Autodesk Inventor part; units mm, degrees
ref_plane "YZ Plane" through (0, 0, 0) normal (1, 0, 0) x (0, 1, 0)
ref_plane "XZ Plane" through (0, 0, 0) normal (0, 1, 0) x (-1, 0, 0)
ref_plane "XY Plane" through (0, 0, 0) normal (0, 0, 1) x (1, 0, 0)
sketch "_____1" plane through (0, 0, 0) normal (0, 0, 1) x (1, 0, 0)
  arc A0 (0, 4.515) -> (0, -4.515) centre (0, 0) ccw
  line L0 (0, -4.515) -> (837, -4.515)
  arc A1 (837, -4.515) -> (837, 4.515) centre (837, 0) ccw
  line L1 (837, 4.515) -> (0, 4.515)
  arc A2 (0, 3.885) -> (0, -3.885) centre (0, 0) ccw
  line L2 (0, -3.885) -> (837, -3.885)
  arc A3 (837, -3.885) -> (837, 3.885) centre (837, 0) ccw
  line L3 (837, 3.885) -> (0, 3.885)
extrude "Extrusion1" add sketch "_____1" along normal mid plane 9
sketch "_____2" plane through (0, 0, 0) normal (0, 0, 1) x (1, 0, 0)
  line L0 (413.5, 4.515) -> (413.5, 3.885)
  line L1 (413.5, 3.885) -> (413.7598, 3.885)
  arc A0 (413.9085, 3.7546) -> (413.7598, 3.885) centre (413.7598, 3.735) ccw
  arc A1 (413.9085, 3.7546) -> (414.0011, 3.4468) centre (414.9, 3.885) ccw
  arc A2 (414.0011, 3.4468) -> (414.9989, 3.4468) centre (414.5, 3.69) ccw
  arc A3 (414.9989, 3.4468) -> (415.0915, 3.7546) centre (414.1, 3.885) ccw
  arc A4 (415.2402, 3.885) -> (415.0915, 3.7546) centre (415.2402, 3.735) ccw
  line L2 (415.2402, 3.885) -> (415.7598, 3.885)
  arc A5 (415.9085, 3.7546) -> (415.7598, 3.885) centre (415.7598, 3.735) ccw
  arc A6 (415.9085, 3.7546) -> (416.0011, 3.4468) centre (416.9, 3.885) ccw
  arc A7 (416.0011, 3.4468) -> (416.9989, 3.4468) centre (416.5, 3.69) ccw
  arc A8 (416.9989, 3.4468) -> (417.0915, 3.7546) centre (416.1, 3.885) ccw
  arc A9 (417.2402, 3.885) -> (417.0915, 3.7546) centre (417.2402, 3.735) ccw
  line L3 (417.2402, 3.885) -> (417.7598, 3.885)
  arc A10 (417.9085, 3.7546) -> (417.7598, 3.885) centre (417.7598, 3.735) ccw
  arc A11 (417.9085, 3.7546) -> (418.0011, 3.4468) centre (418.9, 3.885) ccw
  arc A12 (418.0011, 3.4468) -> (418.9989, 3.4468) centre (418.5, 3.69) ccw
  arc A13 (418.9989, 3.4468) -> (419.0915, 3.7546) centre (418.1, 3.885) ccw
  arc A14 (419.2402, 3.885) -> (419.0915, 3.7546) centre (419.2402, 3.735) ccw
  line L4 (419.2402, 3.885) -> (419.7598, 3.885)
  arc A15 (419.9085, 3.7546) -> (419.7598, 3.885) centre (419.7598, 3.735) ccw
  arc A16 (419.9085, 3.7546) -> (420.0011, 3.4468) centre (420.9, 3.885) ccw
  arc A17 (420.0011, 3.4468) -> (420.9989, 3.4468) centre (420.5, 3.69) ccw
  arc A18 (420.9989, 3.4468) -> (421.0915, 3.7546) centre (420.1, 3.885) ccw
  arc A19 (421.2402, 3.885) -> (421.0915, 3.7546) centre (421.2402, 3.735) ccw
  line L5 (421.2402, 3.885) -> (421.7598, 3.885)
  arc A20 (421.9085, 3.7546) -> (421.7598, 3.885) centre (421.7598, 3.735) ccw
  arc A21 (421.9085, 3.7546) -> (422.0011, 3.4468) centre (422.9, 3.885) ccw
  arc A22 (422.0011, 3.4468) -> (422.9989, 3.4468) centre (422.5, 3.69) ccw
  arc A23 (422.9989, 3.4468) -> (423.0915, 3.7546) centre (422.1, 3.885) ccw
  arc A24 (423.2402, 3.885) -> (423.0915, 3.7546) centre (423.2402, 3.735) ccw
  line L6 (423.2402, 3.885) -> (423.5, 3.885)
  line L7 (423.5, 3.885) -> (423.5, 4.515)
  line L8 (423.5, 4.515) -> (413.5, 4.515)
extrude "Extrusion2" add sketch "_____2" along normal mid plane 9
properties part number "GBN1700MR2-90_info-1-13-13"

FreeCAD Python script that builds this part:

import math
import FreeCAD as App
import Part
import Sketcher

V = App.Vector
Q = App.Units.Quantity

doc = App.newDocument("Part")
body = doc.addObject("PartDesign::Body", "Body")

sketch1 = doc.addObject("Sketcher::SketchObject", "Sketch")
body.addObject(sketch1)
sketch1.AttachmentSupport = (doc.XY_Plane, [""])
sketch1.MapMode = "FlatFace"
sketch1.addGeometry(Part.LineSegment(V(837, 4.5, 0), V(0, 4.5, 0)), False)
sketch1.addGeometry(Part.ArcOfCircle(Part.Circle(V(0, 0, 0), V(0, 0, 1), 4.5), math.radians(90), math.radians(270)), False)
sketch1.addGeometry(Part.LineSegment(V(0, -4.5, 0), V(837, -4.5, 0)), False)
sketch1.addGeometry(Part.ArcOfCircle(Part.Circle(V(837, 0, 0), V(0, 0, 1), 4.5), math.radians(-90), math.radians(90)), False)
sketch1.addGeometry(Part.ArcOfCircle(Part.Circle(V(0, 0, 0), V(0, 0, 1), 3.9), math.radians(90), math.radians(270)), False)
sketch1.addGeometry(Part.LineSegment(V(0, 3.9, 0), V(837, 3.9, 0)), False)
sketch1.addGeometry(Part.ArcOfCircle(Part.Circle(V(837, 0, 0), V(0, 0, 1), 3.9), math.radians(-90), math.radians(90)), False)
sketch1.addGeometry(Part.LineSegment(V(837, -3.9, 0), V(0, -3.9, 0)), False)
sketch1.addConstraint(Sketcher.Constraint("Tangent", 0, 2, 1, 1))
sketch1.addConstraint(Sketcher.Constraint("Tangent", 1, 2, 2, 1))
sketch1.addConstraint(Sketcher.Constraint("Tangent", 2, 2, 3, 1))
sketch1.addConstraint(Sketcher.Constraint("Tangent", 3, 2, 0, 1))
sketch1.addConstraint(Sketcher.Constraint("Tangent", 4, 1, 5, 1))
sketch1.addConstraint(Sketcher.Constraint("Tangent", 5, 2, 6, 2))
sketch1.addConstraint(Sketcher.Constraint("Tangent", 6, 1, 7, 1))
sketch1.addConstraint(Sketcher.Constraint("Tangent", 7, 2, 4, 2))
sketch1.addConstraint(Sketcher.Constraint("Horizontal", 0))
sketch1.addConstraint(Sketcher.Constraint("Horizontal", 2))
sketch1.addConstraint(Sketcher.Constraint("Horizontal", 5))
sketch1.addConstraint(Sketcher.Constraint("Horizontal", 7))
sketch1.addConstraint(Sketcher.Constraint("Coincident", 1, 3, -1, 1))
sketch1.addConstraint(Sketcher.Constraint("Coincident", 4, 3, -1, 1))
sketch1.addConstraint(Sketcher.Constraint("Vertical", 6, 3, 2, 2))
sketch1.addConstraint(Sketcher.Constraint("DistanceX", 0, 2, 0, 1, Q("837 mm")))
sketch1.addConstraint(Sketcher.Constraint("Radius", 1, Q("4.515 mm")))
sketch1.addConstraint(Sketcher.Constraint("Radius", 4, Q("3.885 mm")))
pad1 = doc.addObject("PartDesign::Pad", "Pad")
body.addObject(pad1)
pad1.Profile = sketch1
pad1.Length = 9
pad1.Midplane = True

sketch2 = doc.addObject("Sketcher::SketchObject", "Sketch001")
body.addObject(sketch2)
sketch2.AttachmentSupport = (doc.XY_Plane, [""])
sketch2.MapMode = "FlatFace"
sketch2.addGeometry(Part.LineSegment(V(423.5, 4.51, 0), V(413.5, 4.51, 0)), False)
sketch2.addGeometry(Part.LineSegment(V(413.5, 4.51, 0), V(413.5, 3.88, 0)), False)
sketch2.addGeometry(Part.LineSegment(V(413.5, 3.88, 0), V(413.76, 3.88, 0)), False)
sketch2.addGeometry(Part.ArcOfCircle(Part.Circle(V(413.76, 3.73, 0), V(0, 0, 1), 0.15), math.radians(8), math.radians(90)), False)
sketch2.addGeometry(Part.ArcOfCircle(Part.Circle(V(414.9, 3.88, 0), V(0, 0, 1), 1), math.radians(-172.51), math.radians(-154.01)), False)
sketch2.addGeometry(Part.ArcOfCircle(Part.Circle(V(414.5, 3.69, 0), V(0, 0, 1), 0.56), math.radians(-154), math.radians(-26)), False)
sketch2.addGeometry(Part.ArcOfCircle(Part.Circle(V(414.1, 3.88, 0), V(0, 0, 1), 1), math.radians(-25.99), math.radians(-7.49)), False)
sketch2.addGeometry(Part.ArcOfCircle(Part.Circle(V(415.24, 3.73, 0), V(0, 0, 1), 0.15), math.radians(90), math.radians(172)), False)
sketch2.addGeometry(Part.LineSegment(V(415.24, 3.88, 0), V(415.76, 3.88, 0)), False)
sketch2.addGeometry(Part.ArcOfCircle(Part.Circle(V(415.76, 3.73, 0), V(0, 0, 1), 0.15), math.radians(8), math.radians(90)), False)
sketch2.addGeometry(Part.ArcOfCircle(Part.Circle(V(416.9, 3.88, 0), V(0, 0, 1), 1), math.radians(-172.51), math.radians(-154.01)), False)
sketch2.addGeometry(Part.ArcOfCircle(Part.Circle(V(416.5, 3.69, 0), V(0, 0, 1), 0.56), math.radians(-154), math.radians(-26)), False)
sketch2.addGeometry(Part.ArcOfCircle(Part.Circle(V(416.1, 3.88, 0), V(0, 0, 1), 1), math.radians(-25.99), math.radians(-7.49)), False)
sketch2.addGeometry(Part.ArcOfCircle(Part.Circle(V(417.24, 3.73, 0), V(0, 0, 1), 0.15), math.radians(90), math.radians(172)), False)
sketch2.addGeometry(Part.LineSegment(V(417.24, 3.88, 0), V(417.76, 3.88, 0)), False)
sketch2.addGeometry(Part.ArcOfCircle(Part.Circle(V(417.76, 3.73, 0), V(0, 0, 1), 0.15), math.radians(8), math.radians(90)), False)
sketch2.addGeometry(Part.ArcOfCircle(Part.Circle(V(418.9, 3.88, 0), V(0, 0, 1), 1), math.radians(-172.51), math.radians(-154.01)), False)
sketch2.addGeometry(Part.ArcOfCircle(Part.Circle(V(418.5, 3.69, 0), V(0, 0, 1), 0.56), math.radians(-154), math.radians(-26)), False)
sketch2.addGeometry(Part.ArcOfCircle(Part.Circle(V(418.1, 3.88, 0), V(0, 0, 1), 1), math.radians(-25.99), math.radians(-7.49)), False)
sketch2.addGeometry(Part.ArcOfCircle(Part.Circle(V(419.24, 3.73, 0), V(0, 0, 1), 0.15), math.radians(90), math.radians(172)), False)
sketch2.addGeometry(Part.LineSegment(V(419.24, 3.88, 0), V(419.76, 3.88, 0)), False)
sketch2.addGeometry(Part.ArcOfCircle(Part.Circle(V(419.76, 3.73, 0), V(0, 0, 1), 0.15), math.radians(8), math.radians(90)), False)
sketch2.addGeometry(Part.ArcOfCircle(Part.Circle(V(420.9, 3.88, 0), V(0, 0, 1), 1), math.radians(-172.51), math.radians(-154.01)), False)
sketch2.addGeometry(Part.ArcOfCircle(Part.Circle(V(420.5, 3.69, 0), V(0, 0, 1), 0.56), math.radians(-154), math.radians(-26)), False)
sketch2.addGeometry(Part.ArcOfCircle(Part.Circle(V(420.1, 3.88, 0), V(0, 0, 1), 1), math.radians(-25.99), math.radians(-7.49)), False)
sketch2.addGeometry(Part.ArcOfCircle(Part.Circle(V(421.24, 3.73, 0), V(0, 0, 1), 0.15), math.radians(90), math.radians(172)), False)
sketch2.addGeometry(Part.LineSegment(V(421.24, 3.88, 0), V(421.76, 3.88, 0)), False)
sketch2.addGeometry(Part.ArcOfCircle(Part.Circle(V(421.76, 3.73, 0), V(0, 0, 1), 0.15), math.radians(8), math.radians(90)), False)
sketch2.addGeometry(Part.ArcOfCircle(Part.Circle(V(422.9, 3.88, 0), V(0, 0, 1), 1), math.radians(-172.51), math.radians(-154.01)), False)
sketch2.addGeometry(Part.ArcOfCircle(Part.Circle(V(422.5, 3.69, 0), V(0, 0, 1), 0.56), math.radians(-154), math.radians(-26)), False)
sketch2.addGeometry(Part.ArcOfCircle(Part.Circle(V(422.1, 3.88, 0), V(0, 0, 1), 1), math.radians(-25.99), math.radians(-7.49)), False)
sketch2.addGeometry(Part.ArcOfCircle(Part.Circle(V(423.24, 3.73, 0), V(0, 0, 1), 0.15), math.radians(90), math.radians(172)), False)
sketch2.addGeometry(Part.LineSegment(V(423.24, 3.88, 0), V(423.5, 3.88, 0)), False)
sketch2.addGeometry(Part.LineSegment(V(423.5, 3.88, 0), V(423.5, 4.51, 0)), False)
sketch2.addConstraint(Sketcher.Constraint("Coincident", 0, 2, 1, 1))
sketch2.addConstraint(Sketcher.Constraint("Coincident", 1, 2, 2, 1))
sketch2.addConstraint(Sketcher.Constraint("Tangent", 2, 2, 3, 2))
sketch2.addConstraint(Sketcher.Constraint("Tangent", 3, 1, 4, 1))
sketch2.addConstraint(Sketcher.Constraint("Tangent", 4, 2, 5, 1))
sketch2.addConstraint(Sketcher.Constraint("Tangent", 5, 2, 6, 1))
sketch2.addConstraint(Sketcher.Constraint("Tangent", 6, 2, 7, 2))
sketch2.addConstraint(Sketcher.Constraint("Tangent", 7, 1, 8, 1))
sketch2.addConstraint(Sketcher.Constraint("Tangent", 8, 2, 9, 2))
sketch2.addConstraint(Sketcher.Constraint("Tangent", 9, 1, 10, 1))
sketch2.addConstraint(Sketcher.Constraint("Tangent", 10, 2, 11, 1))
sketch2.addConstraint(Sketcher.Constraint("Tangent", 11, 2, 12, 1))
sketch2.addConstraint(Sketcher.Constraint("Tangent", 12, 2, 13, 2))
sketch2.addConstraint(Sketcher.Constraint("Tangent", 13, 1, 14, 1))
sketch2.addConstraint(Sketcher.Constraint("Tangent", 14, 2, 15, 2))
sketch2.addConstraint(Sketcher.Constraint("Tangent", 15, 1, 16, 1))
sketch2.addConstraint(Sketcher.Constraint("Tangent", 16, 2, 17, 1))
sketch2.addConstraint(Sketcher.Constraint("Tangent", 17, 2, 18, 1))
sketch2.addConstraint(Sketcher.Constraint("Tangent", 18, 2, 19, 2))
sketch2.addConstraint(Sketcher.Constraint("Tangent", 19, 1, 20, 1))
sketch2.addConstraint(Sketcher.Constraint("Tangent", 20, 2, 21, 2))
sketch2.addConstraint(Sketcher.Constraint("Tangent", 21, 1, 22, 1))
sketch2.addConstraint(Sketcher.Constraint("Tangent", 22, 2, 23, 1))
sketch2.addConstraint(Sketcher.Constraint("Tangent", 23, 2, 24, 1))
sketch2.addConstraint(Sketcher.Constraint("Tangent", 24, 2, 25, 2))
sketch2.addConstraint(Sketcher.Constraint("Tangent", 25, 1, 26, 1))
sketch2.addConstraint(Sketcher.Constraint("Tangent", 26, 2, 27, 2))
sketch2.addConstraint(Sketcher.Constraint("Tangent", 27, 1, 28, 1))
sketch2.addConstraint(Sketcher.Constraint("Tangent", 28, 2, 29, 1))
sketch2.addConstraint(Sketcher.Constraint("Tangent", 29, 2, 30, 1))
sketch2.addConstraint(Sketcher.Constraint("Tangent", 30, 2, 31, 2))
sketch2.addConstraint(Sketcher.Constraint("Tangent", 31, 1, 32, 1))
sketch2.addConstraint(Sketcher.Constraint("Coincident", 32, 2, 33, 1))
sketch2.addConstraint(Sketcher.Constraint("Coincident", 33, 2, 0, 1))
sketch2.addConstraint(Sketcher.Constraint("Horizontal", 0))
sketch2.addConstraint(Sketcher.Constraint("Vertical", 1))
sketch2.addConstraint(Sketcher.Constraint("Horizontal", 2))
sketch2.addConstraint(Sketcher.Constraint("Horizontal", 8))
sketch2.addConstraint(Sketcher.Constraint("Horizontal", 14))
sketch2.addConstraint(Sketcher.Constraint("Horizontal", 20))
sketch2.addConstraint(Sketcher.Constraint("Horizontal", 26))
sketch2.addConstraint(Sketcher.Constraint("Horizontal", 32))
sketch2.addConstraint(Sketcher.Constraint("Vertical", 33))
sketch2.addConstraint(Sketcher.Constraint("Equal", 4, 6))
sketch2.addConstraint(Sketcher.Constraint("Equal", 3, 7))
sketch2.addConstraint(Sketcher.Constraint("Equal", 7, 9))
sketch2.addConstraint(Sketcher.Constraint("Equal", 6, 10))
sketch2.addConstraint(Sketcher.Constraint("Equal", 5, 11))
sketch2.addConstraint(Sketcher.Constraint("Equal", 10, 12))
sketch2.addConstraint(Sketcher.Constraint("Equal", 9, 13))
sketch2.addConstraint(Sketcher.Constraint("Equal", 13, 15))
sketch2.addConstraint(Sketcher.Constraint("Equal", 12, 16))
sketch2.addConstraint(Sketcher.Constraint("Equal", 11, 17))
sketch2.addConstraint(Sketcher.Constraint("Equal", 16, 18))
sketch2.addConstraint(Sketcher.Constraint("Equal", 15, 19))
sketch2.addConstraint(Sketcher.Constraint("Equal", 19, 21))
sketch2.addConstraint(Sketcher.Constraint("Equal", 18, 22))
sketch2.addConstraint(Sketcher.Constraint("Equal", 17, 23))
sketch2.addConstraint(Sketcher.Constraint("Equal", 22, 24))
sketch2.addConstraint(Sketcher.Constraint("Equal", 21, 25))
sketch2.addConstraint(Sketcher.Constraint("Equal", 25, 27))
sketch2.addConstraint(Sketcher.Constraint("Equal", 24, 28))
sketch2.addConstraint(Sketcher.Constraint("Equal", 23, 29))
sketch2.addConstraint(Sketcher.Constraint("Equal", 28, 30))
sketch2.addConstraint(Sketcher.Constraint("Equal", 27, 31))
sketch2.addConstraint(Sketcher.Constraint("Horizontal", 4, 3, 6, 3))
sketch2.addConstraint(Sketcher.Constraint("Horizontal", 3, 3, 7, 3))
sketch2.addConstraint(Sketcher.Constraint("Horizontal", 6, 3, 10, 3))
sketch2.addConstraint(Sketcher.Constraint("Horizontal", 5, 3, 11, 3))
sketch2.addConstraint(Sketcher.Constraint("Horizontal", 10, 3, 12, 3))
sketch2.addConstraint(Sketcher.Constraint("Horizontal", 9, 3, 13, 3))
sketch2.addConstraint(Sketcher.Constraint("Horizontal", 12, 3, 16, 3))
sketch2.addConstraint(Sketcher.Constraint("Horizontal", 11, 3, 17, 3))
sketch2.addConstraint(Sketcher.Constraint("Horizontal", 16, 3, 18, 3))
sketch2.addConstraint(Sketcher.Constraint("Horizontal", 15, 3, 19, 3))
sketch2.addConstraint(Sketcher.Constraint("Horizontal", 18, 3, 22, 3))
sketch2.addConstraint(Sketcher.Constraint("Horizontal", 17, 3, 23, 3))
sketch2.addConstraint(Sketcher.Constraint("Horizontal", 22, 3, 24, 3))
sketch2.addConstraint(Sketcher.Constraint("Horizontal", 21, 3, 25, 3))
sketch2.addConstraint(Sketcher.Constraint("Horizontal", 24, 3, 28, 3))
sketch2.addConstraint(Sketcher.Constraint("Horizontal", 23, 3, 29, 3))
sketch2.addConstraint(Sketcher.Constraint("Horizontal", 28, 3, 30, 3))
sketch2.addConstraint(Sketcher.Constraint("Horizontal", 27, 3, 31, 3))
sketch2.addConstraint(Sketcher.Constraint("Horizontal", 30, 3, 1, 2))
sketch2.addConstraint(Sketcher.Constraint("Equal", 8, 14))
sketch2.addConstraint(Sketcher.Constraint("Equal", 14, 20))
sketch2.addConstraint(Sketcher.Constraint("Equal", 20, 26))
sketch2.addConstraint(Sketcher.Constraint("Equal", 2, 32))
sketch2.addConstraint(Sketcher.Constraint("Radius", 4, Q("1 mm")))
sketch2.addConstraint(Sketcher.Constraint("DistanceX", 0, 2, 0, 1, Q("10 mm")))
sketch2.addConstraint(Sketcher.Constraint("Radius", 3, Q("0.15 mm")))
sketch2.addConstraint(Sketcher.Constraint("Radius", 5, Q("0.555 mm")))
sketch2.addConstraint(Sketcher.Constraint("DistanceX", 3, 3, 9, 3, Q("2 mm")))
sketch2.addConstraint(Sketcher.Constraint("DistanceY", 1, 2, 1, 1, Q("0.63 mm")))
sketch2.addConstraint(Sketcher.Constraint("DistanceX", -1, 1, 4, 3, Q("414.9 mm")))
sketch2.addConstraint(Sketcher.Constraint("DistanceX", -1, 1, 5, 3, Q("414.5 mm")))
sketch2.addConstraint(Sketcher.Constraint("DistanceY", -1, 1, 5, 3, Q("3.69 mm")))
pad2 = doc.addObject("PartDesign::Pad", "Pad001")
body.addObject(pad2)
pad2.Profile = sketch2
pad2.Length = 9
pad2.Midplane = True

doc.recompute()
